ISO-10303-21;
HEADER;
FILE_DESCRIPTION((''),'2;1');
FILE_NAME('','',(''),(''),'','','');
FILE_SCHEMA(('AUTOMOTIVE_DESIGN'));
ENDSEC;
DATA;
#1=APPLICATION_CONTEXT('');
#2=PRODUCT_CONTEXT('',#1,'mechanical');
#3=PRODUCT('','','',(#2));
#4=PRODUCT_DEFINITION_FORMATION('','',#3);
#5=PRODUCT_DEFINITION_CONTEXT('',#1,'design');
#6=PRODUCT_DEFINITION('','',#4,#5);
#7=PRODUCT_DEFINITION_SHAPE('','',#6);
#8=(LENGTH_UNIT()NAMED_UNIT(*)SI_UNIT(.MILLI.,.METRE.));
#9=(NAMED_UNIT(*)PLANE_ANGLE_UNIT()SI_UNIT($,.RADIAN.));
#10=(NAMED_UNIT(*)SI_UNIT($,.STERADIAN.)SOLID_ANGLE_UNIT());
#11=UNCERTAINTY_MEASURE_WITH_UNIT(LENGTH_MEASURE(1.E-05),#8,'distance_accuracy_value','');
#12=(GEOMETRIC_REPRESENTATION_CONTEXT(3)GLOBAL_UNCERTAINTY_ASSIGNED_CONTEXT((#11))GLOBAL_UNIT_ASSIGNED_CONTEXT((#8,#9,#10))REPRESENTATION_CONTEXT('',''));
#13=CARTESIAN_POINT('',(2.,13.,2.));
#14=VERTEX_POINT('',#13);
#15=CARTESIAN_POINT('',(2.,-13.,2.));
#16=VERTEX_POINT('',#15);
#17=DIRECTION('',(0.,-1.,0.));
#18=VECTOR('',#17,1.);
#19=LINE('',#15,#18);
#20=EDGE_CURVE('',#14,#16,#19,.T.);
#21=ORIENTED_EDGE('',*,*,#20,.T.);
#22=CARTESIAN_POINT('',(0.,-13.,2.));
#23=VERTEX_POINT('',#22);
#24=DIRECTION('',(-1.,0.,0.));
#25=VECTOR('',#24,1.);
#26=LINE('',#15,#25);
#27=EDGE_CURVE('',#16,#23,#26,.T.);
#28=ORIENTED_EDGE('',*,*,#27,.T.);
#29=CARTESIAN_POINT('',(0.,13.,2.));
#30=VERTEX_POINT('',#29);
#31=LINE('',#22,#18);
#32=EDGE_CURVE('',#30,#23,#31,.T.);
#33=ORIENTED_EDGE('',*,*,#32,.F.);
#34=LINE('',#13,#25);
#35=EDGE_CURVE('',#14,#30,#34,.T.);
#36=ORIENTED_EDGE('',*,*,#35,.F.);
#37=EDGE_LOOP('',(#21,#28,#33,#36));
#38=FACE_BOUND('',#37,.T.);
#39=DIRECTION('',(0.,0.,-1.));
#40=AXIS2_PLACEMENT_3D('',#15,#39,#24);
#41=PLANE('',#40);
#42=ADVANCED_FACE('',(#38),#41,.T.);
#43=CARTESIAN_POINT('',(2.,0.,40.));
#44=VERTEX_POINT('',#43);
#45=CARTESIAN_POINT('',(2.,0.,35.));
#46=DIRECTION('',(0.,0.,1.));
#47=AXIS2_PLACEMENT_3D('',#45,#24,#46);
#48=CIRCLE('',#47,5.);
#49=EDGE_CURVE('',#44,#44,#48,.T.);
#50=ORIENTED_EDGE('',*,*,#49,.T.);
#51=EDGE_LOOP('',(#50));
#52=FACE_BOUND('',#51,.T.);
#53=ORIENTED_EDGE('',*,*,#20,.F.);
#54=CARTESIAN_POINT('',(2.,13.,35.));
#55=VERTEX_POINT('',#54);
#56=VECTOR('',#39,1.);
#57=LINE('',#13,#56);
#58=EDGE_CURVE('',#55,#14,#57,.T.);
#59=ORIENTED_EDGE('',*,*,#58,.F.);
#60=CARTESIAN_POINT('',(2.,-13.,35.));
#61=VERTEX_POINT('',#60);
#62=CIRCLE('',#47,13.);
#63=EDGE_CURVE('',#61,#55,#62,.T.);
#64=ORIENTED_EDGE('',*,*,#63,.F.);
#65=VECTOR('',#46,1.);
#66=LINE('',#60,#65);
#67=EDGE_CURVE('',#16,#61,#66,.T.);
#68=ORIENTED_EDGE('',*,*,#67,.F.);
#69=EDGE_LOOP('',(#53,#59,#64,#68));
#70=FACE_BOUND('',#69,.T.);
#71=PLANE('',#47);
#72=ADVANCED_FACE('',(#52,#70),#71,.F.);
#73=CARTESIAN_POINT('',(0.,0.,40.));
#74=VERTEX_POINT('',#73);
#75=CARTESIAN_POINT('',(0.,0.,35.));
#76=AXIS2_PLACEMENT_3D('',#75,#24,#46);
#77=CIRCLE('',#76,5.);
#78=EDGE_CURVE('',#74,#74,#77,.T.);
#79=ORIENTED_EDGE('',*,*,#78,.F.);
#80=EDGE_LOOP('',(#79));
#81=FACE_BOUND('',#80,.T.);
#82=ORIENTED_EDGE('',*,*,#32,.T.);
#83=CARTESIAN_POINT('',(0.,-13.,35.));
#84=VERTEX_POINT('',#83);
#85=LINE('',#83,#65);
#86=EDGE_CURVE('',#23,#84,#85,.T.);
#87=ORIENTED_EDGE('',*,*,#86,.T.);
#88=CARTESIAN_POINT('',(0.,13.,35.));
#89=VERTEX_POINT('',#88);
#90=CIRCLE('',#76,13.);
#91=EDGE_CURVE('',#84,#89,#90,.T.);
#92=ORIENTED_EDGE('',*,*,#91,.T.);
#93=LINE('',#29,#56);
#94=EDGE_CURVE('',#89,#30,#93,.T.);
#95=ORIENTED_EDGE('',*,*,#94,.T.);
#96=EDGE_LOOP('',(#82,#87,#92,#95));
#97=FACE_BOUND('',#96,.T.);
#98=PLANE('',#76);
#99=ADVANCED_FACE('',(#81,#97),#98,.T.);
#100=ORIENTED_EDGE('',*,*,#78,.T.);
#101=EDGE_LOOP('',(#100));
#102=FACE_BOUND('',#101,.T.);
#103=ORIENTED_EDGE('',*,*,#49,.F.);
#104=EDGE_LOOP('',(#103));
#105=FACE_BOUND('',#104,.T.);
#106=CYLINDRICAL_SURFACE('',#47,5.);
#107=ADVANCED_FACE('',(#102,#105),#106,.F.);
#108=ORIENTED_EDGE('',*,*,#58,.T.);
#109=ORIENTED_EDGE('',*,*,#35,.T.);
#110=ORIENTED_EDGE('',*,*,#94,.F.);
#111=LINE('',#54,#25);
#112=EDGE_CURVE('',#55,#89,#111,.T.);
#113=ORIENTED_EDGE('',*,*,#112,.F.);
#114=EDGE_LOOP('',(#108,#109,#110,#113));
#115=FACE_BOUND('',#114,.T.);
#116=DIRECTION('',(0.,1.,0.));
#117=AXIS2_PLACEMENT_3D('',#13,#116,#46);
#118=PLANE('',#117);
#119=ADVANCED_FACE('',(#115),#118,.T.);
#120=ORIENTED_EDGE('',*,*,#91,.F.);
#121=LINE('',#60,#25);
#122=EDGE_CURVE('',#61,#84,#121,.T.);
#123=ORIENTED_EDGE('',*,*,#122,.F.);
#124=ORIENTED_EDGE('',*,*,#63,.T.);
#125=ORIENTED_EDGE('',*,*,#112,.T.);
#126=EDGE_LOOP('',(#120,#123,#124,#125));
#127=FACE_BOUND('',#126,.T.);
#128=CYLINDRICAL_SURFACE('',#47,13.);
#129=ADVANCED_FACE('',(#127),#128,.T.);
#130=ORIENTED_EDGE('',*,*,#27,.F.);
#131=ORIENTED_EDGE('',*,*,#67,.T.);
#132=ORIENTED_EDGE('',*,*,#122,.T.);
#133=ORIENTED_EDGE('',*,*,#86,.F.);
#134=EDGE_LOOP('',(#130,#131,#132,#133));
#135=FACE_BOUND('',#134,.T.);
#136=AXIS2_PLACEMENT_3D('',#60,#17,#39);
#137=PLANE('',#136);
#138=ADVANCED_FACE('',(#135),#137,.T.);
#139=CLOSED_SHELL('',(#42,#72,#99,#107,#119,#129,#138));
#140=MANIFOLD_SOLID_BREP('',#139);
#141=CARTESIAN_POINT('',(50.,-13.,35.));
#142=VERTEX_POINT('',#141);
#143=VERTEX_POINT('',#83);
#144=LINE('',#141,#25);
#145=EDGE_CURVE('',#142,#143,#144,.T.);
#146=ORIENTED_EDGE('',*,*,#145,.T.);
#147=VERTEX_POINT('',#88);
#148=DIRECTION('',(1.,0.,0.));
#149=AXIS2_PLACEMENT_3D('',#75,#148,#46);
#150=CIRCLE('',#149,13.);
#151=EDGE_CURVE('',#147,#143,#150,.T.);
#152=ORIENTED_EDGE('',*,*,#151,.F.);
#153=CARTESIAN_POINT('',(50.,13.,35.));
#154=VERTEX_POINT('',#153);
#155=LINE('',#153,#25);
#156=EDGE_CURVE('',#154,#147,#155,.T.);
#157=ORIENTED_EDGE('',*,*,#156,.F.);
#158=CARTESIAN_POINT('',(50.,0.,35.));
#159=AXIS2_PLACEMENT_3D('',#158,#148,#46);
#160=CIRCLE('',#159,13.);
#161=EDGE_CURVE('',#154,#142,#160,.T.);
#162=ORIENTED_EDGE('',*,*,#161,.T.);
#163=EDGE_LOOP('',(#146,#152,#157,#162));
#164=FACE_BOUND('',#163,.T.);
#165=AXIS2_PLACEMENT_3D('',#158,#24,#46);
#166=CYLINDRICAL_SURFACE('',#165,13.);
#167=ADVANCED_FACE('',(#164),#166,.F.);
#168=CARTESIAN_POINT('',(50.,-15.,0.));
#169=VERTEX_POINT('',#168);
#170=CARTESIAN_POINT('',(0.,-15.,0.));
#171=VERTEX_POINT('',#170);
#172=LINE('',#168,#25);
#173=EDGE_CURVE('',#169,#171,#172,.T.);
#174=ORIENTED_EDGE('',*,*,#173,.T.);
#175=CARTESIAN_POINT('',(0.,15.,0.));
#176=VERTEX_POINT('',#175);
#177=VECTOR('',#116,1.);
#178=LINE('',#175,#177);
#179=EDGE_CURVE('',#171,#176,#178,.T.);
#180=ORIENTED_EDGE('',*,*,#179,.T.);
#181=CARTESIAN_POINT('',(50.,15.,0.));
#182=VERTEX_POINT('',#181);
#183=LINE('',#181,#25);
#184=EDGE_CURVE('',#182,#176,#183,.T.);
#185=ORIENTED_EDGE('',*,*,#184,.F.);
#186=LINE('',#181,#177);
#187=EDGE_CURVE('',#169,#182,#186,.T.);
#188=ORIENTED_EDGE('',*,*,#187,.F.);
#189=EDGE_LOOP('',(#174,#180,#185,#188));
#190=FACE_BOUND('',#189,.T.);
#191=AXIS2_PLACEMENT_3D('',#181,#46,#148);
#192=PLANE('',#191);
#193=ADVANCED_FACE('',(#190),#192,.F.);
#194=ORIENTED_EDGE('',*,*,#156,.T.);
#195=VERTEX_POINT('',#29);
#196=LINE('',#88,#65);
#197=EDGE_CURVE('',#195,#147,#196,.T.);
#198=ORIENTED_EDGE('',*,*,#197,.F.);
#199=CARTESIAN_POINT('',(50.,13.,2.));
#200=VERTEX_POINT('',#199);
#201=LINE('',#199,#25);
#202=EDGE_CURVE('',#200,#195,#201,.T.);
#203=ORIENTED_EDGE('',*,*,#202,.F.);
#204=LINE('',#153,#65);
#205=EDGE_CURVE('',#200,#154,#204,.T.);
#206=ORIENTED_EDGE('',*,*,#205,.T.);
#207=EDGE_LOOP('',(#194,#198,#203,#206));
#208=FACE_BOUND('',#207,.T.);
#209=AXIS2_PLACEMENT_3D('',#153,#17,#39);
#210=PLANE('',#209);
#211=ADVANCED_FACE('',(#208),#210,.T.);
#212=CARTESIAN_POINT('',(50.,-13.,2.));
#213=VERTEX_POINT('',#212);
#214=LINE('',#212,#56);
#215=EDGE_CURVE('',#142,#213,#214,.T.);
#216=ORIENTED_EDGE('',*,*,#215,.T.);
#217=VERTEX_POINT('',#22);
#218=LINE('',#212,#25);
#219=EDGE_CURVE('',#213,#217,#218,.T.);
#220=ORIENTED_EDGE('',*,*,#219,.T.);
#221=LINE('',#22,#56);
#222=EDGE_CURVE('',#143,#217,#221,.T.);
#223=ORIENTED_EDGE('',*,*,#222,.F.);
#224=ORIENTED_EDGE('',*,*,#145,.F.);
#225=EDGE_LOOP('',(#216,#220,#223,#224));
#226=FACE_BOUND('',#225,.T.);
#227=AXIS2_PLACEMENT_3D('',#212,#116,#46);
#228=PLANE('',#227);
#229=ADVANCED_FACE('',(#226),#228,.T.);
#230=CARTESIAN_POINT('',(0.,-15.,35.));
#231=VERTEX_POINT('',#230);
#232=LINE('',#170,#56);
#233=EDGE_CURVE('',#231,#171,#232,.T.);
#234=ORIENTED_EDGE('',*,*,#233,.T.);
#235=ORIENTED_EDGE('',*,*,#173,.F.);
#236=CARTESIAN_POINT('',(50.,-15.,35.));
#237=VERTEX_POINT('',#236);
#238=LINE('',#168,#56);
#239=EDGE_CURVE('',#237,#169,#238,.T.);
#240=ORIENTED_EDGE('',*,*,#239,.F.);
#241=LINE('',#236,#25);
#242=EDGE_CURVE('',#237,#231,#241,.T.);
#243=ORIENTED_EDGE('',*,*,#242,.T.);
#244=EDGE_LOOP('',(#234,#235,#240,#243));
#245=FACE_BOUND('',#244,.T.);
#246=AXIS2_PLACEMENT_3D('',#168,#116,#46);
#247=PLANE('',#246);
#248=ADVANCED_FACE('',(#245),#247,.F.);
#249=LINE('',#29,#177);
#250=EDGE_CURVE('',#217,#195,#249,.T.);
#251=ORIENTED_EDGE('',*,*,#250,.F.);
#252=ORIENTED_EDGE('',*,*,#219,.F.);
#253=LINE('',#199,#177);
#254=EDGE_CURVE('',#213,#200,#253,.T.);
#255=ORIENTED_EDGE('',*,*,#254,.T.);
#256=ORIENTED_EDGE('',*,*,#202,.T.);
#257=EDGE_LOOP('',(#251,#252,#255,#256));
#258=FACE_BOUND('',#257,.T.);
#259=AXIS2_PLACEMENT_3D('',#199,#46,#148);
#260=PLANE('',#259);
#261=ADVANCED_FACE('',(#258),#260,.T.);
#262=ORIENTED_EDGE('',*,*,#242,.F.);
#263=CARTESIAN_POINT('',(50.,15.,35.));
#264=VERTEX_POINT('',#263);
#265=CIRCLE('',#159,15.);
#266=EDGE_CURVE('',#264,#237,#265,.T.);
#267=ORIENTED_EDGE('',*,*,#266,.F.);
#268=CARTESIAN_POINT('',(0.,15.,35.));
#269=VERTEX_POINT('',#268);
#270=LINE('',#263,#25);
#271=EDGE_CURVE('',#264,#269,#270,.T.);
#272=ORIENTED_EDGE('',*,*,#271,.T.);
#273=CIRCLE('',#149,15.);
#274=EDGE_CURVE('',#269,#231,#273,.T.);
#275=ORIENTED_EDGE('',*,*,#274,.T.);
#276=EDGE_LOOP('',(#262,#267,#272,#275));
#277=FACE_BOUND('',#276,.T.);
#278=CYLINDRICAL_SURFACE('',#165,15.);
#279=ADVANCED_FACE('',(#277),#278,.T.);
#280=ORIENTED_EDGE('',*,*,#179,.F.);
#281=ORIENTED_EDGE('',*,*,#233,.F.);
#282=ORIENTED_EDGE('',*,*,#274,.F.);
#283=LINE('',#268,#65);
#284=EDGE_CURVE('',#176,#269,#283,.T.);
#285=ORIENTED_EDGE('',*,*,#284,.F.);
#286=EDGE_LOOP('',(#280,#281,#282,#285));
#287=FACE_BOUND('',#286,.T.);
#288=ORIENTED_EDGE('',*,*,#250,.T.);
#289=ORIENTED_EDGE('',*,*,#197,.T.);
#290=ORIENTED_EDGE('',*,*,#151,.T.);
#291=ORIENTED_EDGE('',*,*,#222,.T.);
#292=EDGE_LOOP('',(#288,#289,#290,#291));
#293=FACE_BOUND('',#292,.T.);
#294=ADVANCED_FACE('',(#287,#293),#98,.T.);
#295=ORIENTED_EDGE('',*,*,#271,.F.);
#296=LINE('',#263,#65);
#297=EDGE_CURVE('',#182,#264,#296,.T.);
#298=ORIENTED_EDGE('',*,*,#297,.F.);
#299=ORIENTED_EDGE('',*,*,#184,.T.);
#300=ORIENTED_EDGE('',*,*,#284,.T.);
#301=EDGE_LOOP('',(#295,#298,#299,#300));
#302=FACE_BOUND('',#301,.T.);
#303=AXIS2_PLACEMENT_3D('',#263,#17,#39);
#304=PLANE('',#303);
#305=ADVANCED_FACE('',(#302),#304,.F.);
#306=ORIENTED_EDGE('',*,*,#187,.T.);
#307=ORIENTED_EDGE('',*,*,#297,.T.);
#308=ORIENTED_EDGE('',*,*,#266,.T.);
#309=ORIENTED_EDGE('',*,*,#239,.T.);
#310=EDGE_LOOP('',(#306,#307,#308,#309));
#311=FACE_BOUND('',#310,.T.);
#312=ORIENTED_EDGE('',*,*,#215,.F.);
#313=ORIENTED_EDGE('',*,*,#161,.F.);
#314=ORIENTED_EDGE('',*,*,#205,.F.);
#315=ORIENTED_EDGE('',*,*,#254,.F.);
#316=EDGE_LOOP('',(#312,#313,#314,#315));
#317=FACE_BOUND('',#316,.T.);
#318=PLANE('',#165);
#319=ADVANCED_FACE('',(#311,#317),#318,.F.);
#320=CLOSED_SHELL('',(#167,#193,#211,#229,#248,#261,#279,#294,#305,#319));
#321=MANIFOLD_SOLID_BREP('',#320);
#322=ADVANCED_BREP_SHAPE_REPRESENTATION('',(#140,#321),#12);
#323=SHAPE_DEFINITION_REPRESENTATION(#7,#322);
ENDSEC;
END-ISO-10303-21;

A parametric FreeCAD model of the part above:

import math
import FreeCAD as App
import Part
import Sketcher
from FreeCAD import Vector

doc = App.newDocument("Part")
body = doc.addObject("PartDesign::Body", "Body")

# Sketch on YZ plane
sketch1 = body.newObject("Sketcher::SketchObject", "Sketch")
sketch1.AttachmentSupport = (doc.getObject("YZ_Plane"), [""])
sketch1.MapMode = "FlatFace"
sketch1.addGeometry([
    Part.LineSegment(Vector(-15, 35, 0), Vector(-15, 0, 0)),  # 0
    Part.LineSegment(Vector(-15, 0, 0), Vector(15, 0, 0)),  # 1
    Part.LineSegment(Vector(15, 0, 0), Vector(15, 35, 0)),  # 2
    Part.ArcOfCircle(Part.Circle(Vector(0, 35, 0), Vector(0, 0, 1), 15), math.radians(0), math.radians(180)),  # 3
    Part.LineSegment(Vector(-13, 2, 0), Vector(-13, 35, 0)),  # 4
    Part.ArcOfCircle(Part.Circle(Vector(0, 35, 0), Vector(0, 0, 1), 13), math.radians(0), math.radians(180)),  # 5
    Part.LineSegment(Vector(13, 35, 0), Vector(13, 2, 0)),  # 6
    Part.LineSegment(Vector(13, 2, 0), Vector(-13, 2, 0)),  # 7
], False)
sketch1.addConstraint([
    Sketcher.Constraint("Coincident", 0, 2, 1, 1),
    Sketcher.Constraint("Coincident", 1, 2, 2, 1),
    Sketcher.Constraint("Tangent", 2, 2, 3, 1),
    Sketcher.Constraint("Tangent", 3, 2, 0, 1),
    Sketcher.Constraint("Tangent", 4, 2, 5, 2),
    Sketcher.Constraint("Tangent", 5, 1, 6, 1),
    Sketcher.Constraint("Coincident", 6, 2, 7, 1),
    Sketcher.Constraint("Coincident", 7, 2, 4, 1),
    Sketcher.Constraint("Vertical", 0),
    Sketcher.Constraint("Horizontal", 1),
    Sketcher.Constraint("Vertical", 2),
    Sketcher.Constraint("Vertical", 4),
    Sketcher.Constraint("Vertical", 6),
    Sketcher.Constraint("Horizontal", 7),
    Sketcher.Constraint("Coincident", 5, 3, 3, 3),
    Sketcher.Constraint("Symmetric", 0, 2, 1, 2, -1, 1),
    Sketcher.Constraint("Radius", 3, 15.0),
    Sketcher.Constraint("Radius", 5, 13.0),
    Sketcher.Constraint("DistanceY", 0, 2, 0, 1, 35.0),
    Sketcher.Constraint("DistanceY", 4, 1, 4, 2, 33.0),
])
pad1 = body.newObject("PartDesign::Pad", "Pad")
pad1.Profile = sketch1
pad1.Length = 50
body2 = doc.addObject("PartDesign::Body", "Body001")

# Sketch on YZ plane
sketch2 = body2.newObject("Sketcher::SketchObject", "Sketch001")
sketch2.AttachmentSupport = (doc.getObject("YZ_Plane001"), [""])
sketch2.MapMode = "FlatFace"
sketch2.addGeometry([
    Part.LineSegment(Vector(-13, 2, 0), Vector(-13, 35, 0)),  # 0
    Part.ArcOfCircle(Part.Circle(Vector(0, 35, 0), Vector(0, 0, 1), 13), math.radians(0), math.radians(180)),  # 1
    Part.LineSegment(Vector(13, 35, 0), Vector(13, 2, 0)),  # 2
    Part.LineSegment(Vector(13, 2, 0), Vector(-13, 2, 0)),  # 3
    Part.Circle(Vector(0, 35, 0), Vector(0, 0, 1), 5),  # 4
], False)
sketch2.addConstraint([
    Sketcher.Constraint("Tangent", 0, 2, 1, 2),
    Sketcher.Constraint("Tangent", 1, 1, 2, 1),
    Sketcher.Constraint("Coincident", 2, 2, 3, 1),
    Sketcher.Constraint("Coincident", 3, 2, 0, 1),
    Sketcher.Constraint("Vertical", 0),
    Sketcher.Constraint("Vertical", 2),
    Sketcher.Constraint("Horizontal", 3),
    Sketcher.Constraint("Coincident", 4, 3, 1, 3),
    Sketcher.Constraint("PointOnObject", 1, 3, -2),
    Sketcher.Constraint("Diameter", 4, 10.0),
    Sketcher.Constraint("Radius", 1, 13.0),
    Sketcher.Constraint("DistanceY", 0, 1, 0, 2, 33.0),
    Sketcher.Constraint("DistanceY", -1, 1, 1, 3, 35.0),
])
pad2 = body2.newObject("PartDesign::Pad", "Pad001")
pad2.Profile = sketch2
pad2.Length = 2

doc.recompute()
